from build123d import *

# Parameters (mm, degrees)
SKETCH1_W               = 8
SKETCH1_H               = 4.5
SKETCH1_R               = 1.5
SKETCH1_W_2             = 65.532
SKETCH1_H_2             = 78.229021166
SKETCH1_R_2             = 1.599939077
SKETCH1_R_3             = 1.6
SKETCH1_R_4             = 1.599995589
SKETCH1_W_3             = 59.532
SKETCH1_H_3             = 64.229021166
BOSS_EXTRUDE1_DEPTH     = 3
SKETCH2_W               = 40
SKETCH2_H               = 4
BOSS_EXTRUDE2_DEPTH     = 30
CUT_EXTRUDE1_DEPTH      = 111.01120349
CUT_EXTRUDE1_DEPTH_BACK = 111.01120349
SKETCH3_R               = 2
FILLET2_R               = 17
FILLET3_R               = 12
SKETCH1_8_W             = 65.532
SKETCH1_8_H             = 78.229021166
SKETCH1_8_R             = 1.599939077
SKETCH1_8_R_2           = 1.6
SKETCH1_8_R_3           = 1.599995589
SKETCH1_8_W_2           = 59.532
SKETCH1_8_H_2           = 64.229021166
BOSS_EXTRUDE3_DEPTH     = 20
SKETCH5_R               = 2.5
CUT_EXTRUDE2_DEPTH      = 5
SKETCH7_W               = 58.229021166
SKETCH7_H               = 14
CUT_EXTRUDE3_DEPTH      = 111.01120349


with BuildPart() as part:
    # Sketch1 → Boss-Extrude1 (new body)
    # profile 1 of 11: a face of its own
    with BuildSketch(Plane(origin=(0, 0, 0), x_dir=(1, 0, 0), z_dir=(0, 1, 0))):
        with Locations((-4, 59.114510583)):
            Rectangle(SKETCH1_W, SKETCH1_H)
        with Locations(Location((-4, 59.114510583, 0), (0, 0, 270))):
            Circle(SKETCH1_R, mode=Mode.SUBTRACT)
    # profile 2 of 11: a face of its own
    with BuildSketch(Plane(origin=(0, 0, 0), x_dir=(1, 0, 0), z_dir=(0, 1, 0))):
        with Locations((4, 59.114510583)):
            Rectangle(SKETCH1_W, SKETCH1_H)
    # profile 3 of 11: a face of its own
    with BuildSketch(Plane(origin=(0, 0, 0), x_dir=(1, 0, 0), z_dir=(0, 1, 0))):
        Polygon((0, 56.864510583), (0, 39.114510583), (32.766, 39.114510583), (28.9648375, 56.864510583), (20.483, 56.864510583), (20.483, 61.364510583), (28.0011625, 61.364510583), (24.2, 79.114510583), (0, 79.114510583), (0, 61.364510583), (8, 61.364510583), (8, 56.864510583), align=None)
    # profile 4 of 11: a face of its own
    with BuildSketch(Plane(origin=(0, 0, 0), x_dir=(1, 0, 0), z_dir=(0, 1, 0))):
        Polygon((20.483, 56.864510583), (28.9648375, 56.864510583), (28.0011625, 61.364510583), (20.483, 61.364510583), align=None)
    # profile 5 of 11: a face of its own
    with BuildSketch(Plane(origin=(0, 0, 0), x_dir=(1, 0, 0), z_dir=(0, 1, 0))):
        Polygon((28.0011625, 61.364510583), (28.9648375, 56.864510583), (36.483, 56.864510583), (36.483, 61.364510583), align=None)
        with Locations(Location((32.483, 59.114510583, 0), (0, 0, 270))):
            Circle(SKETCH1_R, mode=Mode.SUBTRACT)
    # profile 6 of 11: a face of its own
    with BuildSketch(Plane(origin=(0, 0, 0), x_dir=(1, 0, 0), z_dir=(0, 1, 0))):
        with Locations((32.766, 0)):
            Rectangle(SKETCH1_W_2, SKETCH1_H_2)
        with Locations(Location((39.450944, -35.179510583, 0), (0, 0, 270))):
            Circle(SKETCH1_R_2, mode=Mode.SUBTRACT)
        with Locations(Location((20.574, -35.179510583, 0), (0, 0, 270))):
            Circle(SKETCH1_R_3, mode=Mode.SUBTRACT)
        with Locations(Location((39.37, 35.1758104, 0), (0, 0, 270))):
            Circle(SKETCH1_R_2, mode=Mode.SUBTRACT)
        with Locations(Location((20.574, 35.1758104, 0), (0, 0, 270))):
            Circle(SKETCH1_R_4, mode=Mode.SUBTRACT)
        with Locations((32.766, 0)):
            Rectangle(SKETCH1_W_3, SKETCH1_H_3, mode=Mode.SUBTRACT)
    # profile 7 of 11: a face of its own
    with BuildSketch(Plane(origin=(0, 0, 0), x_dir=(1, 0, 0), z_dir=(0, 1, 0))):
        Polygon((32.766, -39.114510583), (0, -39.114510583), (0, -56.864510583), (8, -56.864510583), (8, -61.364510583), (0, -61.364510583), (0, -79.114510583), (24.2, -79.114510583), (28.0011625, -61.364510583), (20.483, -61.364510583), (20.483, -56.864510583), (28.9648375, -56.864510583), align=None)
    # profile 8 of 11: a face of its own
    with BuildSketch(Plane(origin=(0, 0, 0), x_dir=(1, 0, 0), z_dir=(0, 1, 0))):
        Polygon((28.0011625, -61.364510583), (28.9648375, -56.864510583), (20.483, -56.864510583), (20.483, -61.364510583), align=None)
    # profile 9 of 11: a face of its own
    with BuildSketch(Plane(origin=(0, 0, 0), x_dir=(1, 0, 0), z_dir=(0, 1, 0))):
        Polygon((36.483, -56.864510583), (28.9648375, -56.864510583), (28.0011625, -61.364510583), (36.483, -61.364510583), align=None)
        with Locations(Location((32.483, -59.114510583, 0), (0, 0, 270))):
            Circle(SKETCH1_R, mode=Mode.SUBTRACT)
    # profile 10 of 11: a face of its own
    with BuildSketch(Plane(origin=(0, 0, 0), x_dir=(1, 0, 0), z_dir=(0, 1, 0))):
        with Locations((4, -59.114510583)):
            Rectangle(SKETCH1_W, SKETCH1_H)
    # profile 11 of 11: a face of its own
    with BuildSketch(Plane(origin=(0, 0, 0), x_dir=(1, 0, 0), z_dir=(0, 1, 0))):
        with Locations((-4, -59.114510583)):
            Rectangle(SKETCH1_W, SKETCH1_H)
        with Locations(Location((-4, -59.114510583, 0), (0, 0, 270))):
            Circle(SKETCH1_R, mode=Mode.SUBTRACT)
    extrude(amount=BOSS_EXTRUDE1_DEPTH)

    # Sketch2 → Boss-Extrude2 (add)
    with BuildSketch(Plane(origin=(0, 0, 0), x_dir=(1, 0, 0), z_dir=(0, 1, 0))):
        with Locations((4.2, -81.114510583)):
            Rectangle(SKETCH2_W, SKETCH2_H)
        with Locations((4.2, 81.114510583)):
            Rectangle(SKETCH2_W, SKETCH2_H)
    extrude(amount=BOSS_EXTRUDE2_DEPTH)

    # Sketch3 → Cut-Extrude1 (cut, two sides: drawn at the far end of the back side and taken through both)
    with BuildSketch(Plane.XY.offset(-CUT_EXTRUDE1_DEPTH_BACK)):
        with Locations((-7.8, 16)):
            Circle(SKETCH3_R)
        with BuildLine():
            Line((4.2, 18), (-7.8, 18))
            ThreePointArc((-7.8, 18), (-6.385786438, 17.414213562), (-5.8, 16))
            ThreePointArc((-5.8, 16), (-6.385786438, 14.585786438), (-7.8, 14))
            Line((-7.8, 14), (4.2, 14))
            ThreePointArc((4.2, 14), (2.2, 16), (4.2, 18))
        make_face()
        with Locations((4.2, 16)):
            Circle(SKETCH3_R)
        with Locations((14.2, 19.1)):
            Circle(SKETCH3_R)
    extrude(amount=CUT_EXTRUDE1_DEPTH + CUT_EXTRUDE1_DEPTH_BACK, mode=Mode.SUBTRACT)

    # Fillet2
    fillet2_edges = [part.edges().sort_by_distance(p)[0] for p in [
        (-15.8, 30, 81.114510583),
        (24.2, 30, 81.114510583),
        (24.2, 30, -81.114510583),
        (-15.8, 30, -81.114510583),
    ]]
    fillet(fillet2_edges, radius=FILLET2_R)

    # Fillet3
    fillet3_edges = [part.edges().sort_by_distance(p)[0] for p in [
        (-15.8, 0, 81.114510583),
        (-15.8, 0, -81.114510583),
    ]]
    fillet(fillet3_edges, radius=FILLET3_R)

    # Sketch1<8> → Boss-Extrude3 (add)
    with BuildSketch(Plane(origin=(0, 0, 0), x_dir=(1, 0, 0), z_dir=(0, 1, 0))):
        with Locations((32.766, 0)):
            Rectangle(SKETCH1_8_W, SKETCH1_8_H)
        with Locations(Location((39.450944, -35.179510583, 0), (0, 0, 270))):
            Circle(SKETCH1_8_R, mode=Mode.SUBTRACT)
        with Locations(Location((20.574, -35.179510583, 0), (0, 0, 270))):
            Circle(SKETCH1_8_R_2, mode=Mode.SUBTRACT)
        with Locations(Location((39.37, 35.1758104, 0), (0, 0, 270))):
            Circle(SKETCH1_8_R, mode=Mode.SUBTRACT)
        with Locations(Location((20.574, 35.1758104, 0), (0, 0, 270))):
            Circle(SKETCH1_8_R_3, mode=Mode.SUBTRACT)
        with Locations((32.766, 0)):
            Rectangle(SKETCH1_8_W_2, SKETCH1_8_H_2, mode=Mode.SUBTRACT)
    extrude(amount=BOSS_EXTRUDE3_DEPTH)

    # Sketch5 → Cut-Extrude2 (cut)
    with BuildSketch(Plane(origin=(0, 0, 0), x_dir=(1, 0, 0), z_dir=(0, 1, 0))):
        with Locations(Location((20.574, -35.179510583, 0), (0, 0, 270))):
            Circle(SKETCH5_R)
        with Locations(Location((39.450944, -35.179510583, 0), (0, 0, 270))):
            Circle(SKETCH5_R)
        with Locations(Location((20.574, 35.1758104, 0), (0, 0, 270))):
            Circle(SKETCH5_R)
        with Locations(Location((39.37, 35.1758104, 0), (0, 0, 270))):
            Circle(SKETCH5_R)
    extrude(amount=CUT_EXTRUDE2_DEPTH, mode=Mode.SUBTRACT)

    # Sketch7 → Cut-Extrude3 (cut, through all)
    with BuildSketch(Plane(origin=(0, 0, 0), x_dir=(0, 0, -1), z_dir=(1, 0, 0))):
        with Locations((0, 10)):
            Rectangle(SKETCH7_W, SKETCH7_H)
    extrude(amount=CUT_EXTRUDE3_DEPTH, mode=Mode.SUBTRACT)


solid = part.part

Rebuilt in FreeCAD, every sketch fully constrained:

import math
import FreeCAD as App
import Part
import Sketcher
from FreeCAD import Vector
Q = App.Units.Quantity


def edges_at(feature, points):
    """Names of the edges that pass closest to the given points."""
    edges = feature.Shape.Edges
    near = lambda p: min(range(len(edges)), key=lambda i: edges[i].distToShape(Part.Vertex(*p))[0])
    return sorted({f"Edge{near(p) + 1}" for p in points})

doc = App.newDocument("Part")
body = doc.addObject("PartDesign::Body", "Body")

sketch1 = body.newObject("Sketcher::SketchObject", "Sketch")
sketch1.AttachmentSupport = (doc.getObject("XZ_Plane"), [""])
sketch1.MapMode = "FlatFace"
sketch1.addGeometry(Part.LineSegment(Vector(-8, -61.364511, 0), Vector(-8, -56.864511, 0)), False)
sketch1.addGeometry(Part.LineSegment(Vector(-8, -56.864511, 0), Vector(0, -56.864511, 0)), False)
sketch1.addGeometry(Part.LineSegment(Vector(0, -56.864511, 0), Vector(0, 56.864511, 0)), False)
sketch1.addGeometry(Part.LineSegment(Vector(0, 56.864511, 0), Vector(-8, 56.864511, 0)), False)
sketch1.addGeometry(Part.LineSegment(Vector(-8, 56.864511, 0), Vector(-8, 61.364511, 0)), False)
sketch1.addGeometry(Part.LineSegment(Vector(-8, 61.364511, 0), Vector(0, 61.364511, 0)), False)
sketch1.addGeometry(Part.LineSegment(Vector(0, 61.364511, 0), Vector(0, 79.114511, 0)), False)
sketch1.addGeometry(Part.LineSegment(Vector(0, 79.114511, 0), Vector(24.2, 79.114511, 0)), False)
sketch1.addGeometry(Part.LineSegment(Vector(24.2, 79.114511, 0), Vector(28.001162, 61.364511, 0)), False)
sketch1.addGeometry(Part.LineSegment(Vector(28.001162, 61.364511, 0), Vector(36.483, 61.364511, 0)), False)
sketch1.addGeometry(Part.LineSegment(Vector(36.483, 61.364511, 0), Vector(36.483, 56.864511, 0)), False)
sketch1.addGeometry(Part.LineSegment(Vector(36.483, 56.864511, 0), Vector(28.964838, 56.864511, 0)), False)
sketch1.addGeometry(Part.LineSegment(Vector(28.964838, 56.864511, 0), Vector(32.766, 39.114511, 0)), False)
sketch1.addGeometry(Part.LineSegment(Vector(32.766, 39.114511, 0), Vector(65.532, 39.114511, 0)), False)
sketch1.addGeometry(Part.LineSegment(Vector(65.532, 39.114511, 0), Vector(65.532, -39.114511, 0)), False)
sketch1.addGeometry(Part.LineSegment(Vector(65.532, -39.114511, 0), Vector(32.766, -39.114511, 0)), False)
sketch1.addGeometry(Part.LineSegment(Vector(32.766, -39.114511, 0), Vector(28.964838, -56.864511, 0)), False)
sketch1.addGeometry(Part.LineSegment(Vector(28.964838, -56.864511, 0), Vector(36.483, -56.864511, 0)), False)
sketch1.addGeometry(Part.LineSegment(Vector(36.483, -56.864511, 0), Vector(36.483, -61.364511, 0)), False)
sketch1.addGeometry(Part.LineSegment(Vector(36.483, -61.364511, 0), Vector(28.001162, -61.364511, 0)), False)
sketch1.addGeometry(Part.LineSegment(Vector(28.001162, -61.364511, 0), Vector(24.2, -79.114511, 0)), False)
sketch1.addGeometry(Part.LineSegment(Vector(24.2, -79.114511, 0), Vector(0, -79.114511, 0)), False)
sketch1.addGeometry(Part.LineSegment(Vector(0, -79.114511, 0), Vector(0, -61.364511, 0)), False)
sketch1.addGeometry(Part.LineSegment(Vector(0, -61.364511, 0), Vector(-8, -61.364511, 0)), False)
sketch1.addGeometry(Part.Circle(Vector(-4, -59.114511, 0), Vector(0, 0, 1), 1.5), False)
sketch1.addGeometry(Part.Circle(Vector(39.37, -35.17581, 0), Vector(0, 0, 1), 1.599939), False)
sketch1.addGeometry(Part.Circle(Vector(20.574, 35.179511, 0), Vector(0, 0, 1), 1.6), False)
sketch1.addGeometry(Part.Circle(Vector(39.450944, 35.179511, 0), Vector(0, 0, 1), 1.599939), False)
sketch1.addGeometry(Part.Circle(Vector(20.574, -35.17581, 0), Vector(0, 0, 1), 1.599996), False)
sketch1.addGeometry(Part.LineSegment(Vector(62.532, 32.114511, 0), Vector(3, 32.114511, 0)), False)
sketch1.addGeometry(Part.LineSegment(Vector(3, 32.114511, 0), Vector(3, -32.114511, 0)), False)
sketch1.addGeometry(Part.LineSegment(Vector(3, -32.114511, 0), Vector(62.532, -32.114511, 0)), False)
sketch1.addGeometry(Part.LineSegment(Vector(62.532, -32.114511, 0), Vector(62.532, 32.114511, 0)), False)
sketch1.addGeometry(Part.Circle(Vector(32.483, -59.114511, 0), Vector(0, 0, 1), 1.5), False)
sketch1.addGeometry(Part.Circle(Vector(-4, 59.114511, 0), Vector(0, 0, 1), 1.5), False)
sketch1.addGeometry(Part.Circle(Vector(32.483, 59.114511, 0), Vector(0, 0, 1), 1.5), False)
sketch1.addConstraint(Sketcher.Constraint("Coincident", 0, 2, 1, 1))
sketch1.addConstraint(Sketcher.Constraint("Coincident", 1, 2, 2, 1))
sketch1.addConstraint(Sketcher.Constraint("Coincident", 2, 2, 3, 1))
sketch1.addConstraint(Sketcher.Constraint("Coincident", 3, 2, 4, 1))
sketch1.addConstraint(Sketcher.Constraint("Coincident", 4, 2, 5, 1))
sketch1.addConstraint(Sketcher.Constraint("Coincident", 5, 2, 6, 1))
sketch1.addConstraint(Sketcher.Constraint("Coincident", 6, 2, 7, 1))
sketch1.addConstraint(Sketcher.Constraint("Coincident", 7, 2, 8, 1))
sketch1.addConstraint(Sketcher.Constraint("Coincident", 8, 2, 9, 1))
sketch1.addConstraint(Sketcher.Constraint("Coincident", 9, 2, 10, 1))
sketch1.addConstraint(Sketcher.Constraint("Coincident", 10, 2, 11, 1))
sketch1.addConstraint(Sketcher.Constraint("Coincident", 11, 2, 12, 1))
sketch1.addConstraint(Sketcher.Constraint("Coincident", 12, 2, 13, 1))
sketch1.addConstraint(Sketcher.Constraint("Coincident", 13, 2, 14, 1))
sketch1.addConstraint(Sketcher.Constraint("Coincident", 14, 2, 15, 1))
sketch1.addConstraint(Sketcher.Constraint("Coincident", 15, 2, 16, 1))
sketch1.addConstraint(Sketcher.Constraint("Coincident", 16, 2, 17, 1))
sketch1.addConstraint(Sketcher.Constraint("Coincident", 17, 2, 18, 1))
sketch1.addConstraint(Sketcher.Constraint("Coincident", 18, 2, 19, 1))
sketch1.addConstraint(Sketcher.Constraint("Coincident", 19, 2, 20, 1))
sketch1.addConstraint(Sketcher.Constraint("Coincident", 20, 2, 21, 1))
sketch1.addConstraint(Sketcher.Constraint("Coincident", 21, 2, 22, 1))
sketch1.addConstraint(Sketcher.Constraint("Coincident", 22, 2, 23, 1))
sketch1.addConstraint(Sketcher.Constraint("Coincident", 23, 2, 0, 1))
sketch1.addConstraint(Sketcher.Constraint("Coincident", 29, 2, 30, 1))
sketch1.addConstraint(Sketcher.Constraint("Coincident", 30, 2, 31, 1))
sketch1.addConstraint(Sketcher.Constraint("Coincident", 31, 2, 32, 1))
sketch1.addConstraint(Sketcher.Constraint("Coincident", 32, 2, 29, 1))
sketch1.addConstraint(Sketcher.Constraint("Vertical", 0))
sketch1.addConstraint(Sketcher.Constraint("Horizontal", 1))
sketch1.addConstraint(Sketcher.Constraint("Vertical", 2))
sketch1.addConstraint(Sketcher.Constraint("Horizontal", 3))
sketch1.addConstraint(Sketcher.Constraint("Vertical", 4))
sketch1.addConstraint(Sketcher.Constraint("Horizontal", 5))
sketch1.addConstraint(Sketcher.Constraint("Vertical", 6))
sketch1.addConstraint(Sketcher.Constraint("Horizontal", 7))
sketch1.addConstraint(Sketcher.Constraint("Horizontal", 9))
sketch1.addConstraint(Sketcher.Constraint("Vertical", 10))
sketch1.addConstraint(Sketcher.Constraint("Horizontal", 11))
sketch1.addConstraint(Sketcher.Constraint("Horizontal", 13))
sketch1.addConstraint(Sketcher.Constraint("Vertical", 14))
sketch1.addConstraint(Sketcher.Constraint("Horizontal", 15))
sketch1.addConstraint(Sketcher.Constraint("Horizontal", 17))
sketch1.addConstraint(Sketcher.Constraint("Vertical", 18))
sketch1.addConstraint(Sketcher.Constraint("Horizontal", 19))
sketch1.addConstraint(Sketcher.Constraint("Horizontal", 21))
sketch1.addConstraint(Sketcher.Constraint("Vertical", 22))
sketch1.addConstraint(Sketcher.Constraint("Horizontal", 23))
sketch1.addConstraint(Sketcher.Constraint("Horizontal", 29))
sketch1.addConstraint(Sketcher.Constraint("Vertical", 30))
sketch1.addConstraint(Sketcher.Constraint("Horizontal", 31))
sketch1.addConstraint(Sketcher.Constraint("Vertical", 32))
sketch1.addConstraint(Sketcher.Constraint("Equal", 25, 27))
sketch1.addConstraint(Sketcher.Constraint("Equal", 24, 33))
sketch1.addConstraint(Sketcher.Constraint("Equal", 33, 34))
sketch1.addConstraint(Sketcher.Constraint("Equal", 34, 35))
sketch1.addConstraint(Sketcher.Constraint("Symmetric", 1, 2, 2, 2, -1, 1))
sketch1.addConstraint(Sketcher.Constraint("Symmetric", 6, 2, 21, 2, -1, 1))
sketch1.addConstraint(Sketcher.Constraint("Symmetric", 24, 3, 34, 3, -1))
sketch1.addConstraint(Sketcher.Constraint("Symmetric", 33, 3, 35, 3, -1))
sketch1.addConstraint(Sketcher.Constraint("Symmetric", 12, 2, 15, 2, -1))
sketch1.addConstraint(Sketcher.Constraint("Symmetric", 11, 2, 16, 2, -1))
sketch1.addConstraint(Sketcher.Constraint("Symmetric", 9, 2, 18, 2, -1))
sketch1.addConstraint(Sketcher.Constraint("Symmetric", 5, 2, 22, 2, -1))
sketch1.addConstraint(Sketcher.Constraint("Parallel", 8, 12))
sketch1.addConstraint(Sketcher.Constraint("Parallel", 16, 20))
sketch1.addConstraint(Sketcher.Constraint("Horizontal", 26, 3, 27, 3))
sketch1.addConstraint(Sketcher.Constraint("Horizontal", 25, 3, 28, 3))
sketch1.addConstraint(Sketcher.Constraint("Horizontal", 24, 3, 33, 3))
sketch1.addConstraint(Sketcher.Constraint("Horizontal", 5, 2, 8, 2))
sketch1.addConstraint(Sketcher.Constraint("Horizontal", 3, 2, 10, 2))
sketch1.addConstraint(Sketcher.Constraint("Vertical", 26, 3, 28, 3))
sketch1.addConstraint(Sketcher.Constraint("Vertical", 0, 2, 3, 2))
sketch1.addConstraint(Sketcher.Constraint("Vertical", 8, 2, 19, 2))
sketch1.addConstraint(Sketcher.Constraint("Equal", 8, 12))
sketch1.addConstraint(Sketcher.Constraint("Diameter", 24, Q("3 mm")))
sketch1.addConstraint(Sketcher.Constraint("Diameter", 26, Q("3.2 mm")))
sketch1.addConstraint(Sketcher.Constraint("DistanceX", 1, 1, 1, 2, Q("8 mm")))
sketch1.addConstraint(Sketcher.Constraint("DistanceX", 7, 1, 7, 2, Q("24.2 mm")))
sketch1.addConstraint(Sketcher.Constraint("DistanceY", 0, 1, 0, 2, Q("4.5 mm")))
sketch1.addConstraint(Sketcher.Constraint("DistanceX", 24, 3, -1, 1, Q("4 mm")))
sketch1.addConstraint(Sketcher.Constraint("DistanceX", -1, 1, 29, 2, Q("3 mm")))
sketch1.addConstraint(Sketcher.Constraint("DistanceY", 34, 3, 6, 2, Q("20 mm")))
sketch1.addConstraint(Sketcher.Constraint("DistanceX", 35, 3, 9, 2, Q("4 mm")))
sketch1.addConstraint(Sketcher.Constraint("DistanceY", 12, 2, 35, 3, Q("20 mm")))
sketch1.addConstraint(Sketcher.Constraint("DistanceY", 29, 2, 34, 3, Q("27 mm")))
sketch1.addConstraint(Sketcher.Constraint("DistanceY", 24, 3, 30, 2, Q("27 mm")))
sketch1.addConstraint(Sketcher.Constraint("DistanceX", 31, 2, 14, 2, Q("3 mm")))
sketch1.addConstraint(Sketcher.Constraint("Diameter", 25, Q("3.199878 mm")))
sketch1.addConstraint(Sketcher.Constraint("Diameter", 28, Q("3.199991 mm")))
sketch1.addConstraint(Sketcher.Constraint("DistanceX", 13, 1, 13, 2, Q("32.766 mm")))
sketch1.addConstraint(Sketcher.Constraint("DistanceX", 29, 2, 29, 1, Q("59.532 mm")))
sketch1.addConstraint(Sketcher.Constraint("DistanceX", -1, 1, 25, 3, Q("39.37 mm")))
sketch1.addConstraint(Sketcher.Constraint("DistanceX", -1, 1, 26, 3, Q("20.574 mm")))
sketch1.addConstraint(Sketcher.Constraint("DistanceX", -1, 1, 33, 3, Q("32.483 mm")))
sketch1.addConstraint(Sketcher.Constraint("DistanceY", 26, 3, 34, 3, Q("23.935 mm")))
sketch1.addConstraint(Sketcher.Constraint("DistanceY", 2, 1, 2, 2, Q("113.729021 mm")))
sketch1.addConstraint(Sketcher.Constraint("DistanceY", 24, 3, 25, 3, Q("23.9387 mm")))
sketch1.addConstraint(Sketcher.Constraint("DistanceX", 9, 1, 9, 2, Q("8.481837 mm")))
sketch1.addConstraint(Sketcher.Constraint("DistanceX", -1, 1, 27, 3, Q("39.450944 mm")))
pad1 = body.newObject("PartDesign::Pad", "Pad")
pad1.Profile = sketch1
pad1.Length = 3
pad1.Reversed = True

sketch2 = body.newObject("Sketcher::SketchObject", "Sketch001")
sketch2.AttachmentSupport = (doc.getObject("XZ_Plane"), [""])
sketch2.MapMode = "FlatFace"
sketch2.addGeometry(Part.LineSegment(Vector(-15.8, 79.114511, 0), Vector(-15.8, 83.114511, 0)), False)
sketch2.addGeometry(Part.LineSegment(Vector(-15.8, 83.114511, 0), Vector(24.2, 83.114511, 0)), False)
sketch2.addGeometry(Part.LineSegment(Vector(24.2, 83.114511, 0), Vector(24.2, 79.114511, 0)), False)
sketch2.addGeometry(Part.LineSegment(Vector(24.2, 79.114511, 0), Vector(-15.8, 79.114511, 0)), False)
sketch2.addGeometry(Part.LineSegment(Vector(-15.8, -83.114511, 0), Vector(-15.8, -79.114511, 0)), False)
sketch2.addGeometry(Part.LineSegment(Vector(-15.8, -79.114511, 0), Vector(24.2, -79.114511, 0)), False)
sketch2.addGeometry(Part.LineSegment(Vector(24.2, -79.114511, 0), Vector(24.2, -83.114511, 0)), False)
sketch2.addGeometry(Part.LineSegment(Vector(24.2, -83.114511, 0), Vector(-15.8, -83.114511, 0)), False)
sketch2.addConstraint(Sketcher.Constraint("Coincident", 0, 2, 1, 1))
sketch2.addConstraint(Sketcher.Constraint("Coincident", 1, 2, 2, 1))
sketch2.addConstraint(Sketcher.Constraint("Coincident", 2, 2, 3, 1))
sketch2.addConstraint(Sketcher.Constraint("Coincident", 3, 2, 0, 1))
sketch2.addConstraint(Sketcher.Constraint("Coincident", 4, 2, 5, 1))
sketch2.addConstraint(Sketcher.Constraint("Coincident", 5, 2, 6, 1))
sketch2.addConstraint(Sketcher.Constraint("Coincident", 6, 2, 7, 1))
sketch2.addConstraint(Sketcher.Constraint("Coincident", 7, 2, 4, 1))
sketch2.addConstraint(Sketcher.Constraint("Vertical", 0))
sketch2.addConstraint(Sketcher.Constraint("Horizontal", 1))
sketch2.addConstraint(Sketcher.Constraint("Vertical", 2))
sketch2.addConstraint(Sketcher.Constraint("Horizontal", 3))
sketch2.addConstraint(Sketcher.Constraint("Vertical", 4))
sketch2.addConstraint(Sketcher.Constraint("Horizontal", 5))
sketch2.addConstraint(Sketcher.Constraint("Vertical", 6))
sketch2.addConstraint(Sketcher.Constraint("Horizontal", 7))
sketch2.addConstraint(Sketcher.Constraint("Symmetric", 3, 2, 4, 2, -1))
sketch2.addConstraint(Sketcher.Constraint("Symmetric", 1, 2, 6, 2, -1))
sketch2.addConstraint(Sketcher.Constraint("DistanceX", 1, 1, 1, 2, Q("40 mm")))
sketch2.addConstraint(Sketcher.Constraint("DistanceY", 0, 1, 0, 2, Q("4 mm")))
sketch2.addConstraint(Sketcher.Constraint("DistanceX", 0, 2, -1, 1, Q("15.8 mm")))
sketch2.addConstraint(Sketcher.Constraint("DistanceY", -1, 1, 0, 2, Q("83.114511 mm")))
pad2 = body.newObject("PartDesign::Pad", "Pad001")
pad2.Profile = sketch2
pad2.Length = 30
pad2.Reversed = True

sketch3 = body.newObject("Sketcher::SketchObject", "Sketch002")
sketch3.AttachmentSupport = (doc.getObject("XY_Plane"), [""])
sketch3.MapMode = "FlatFace"
sketch3.addGeometry(Part.ArcOfCircle(Part.Circle(Vector(-7.8, 16, 0), Vector(0, 0, 1), 2), math.radians(90), math.radians(270)), False)
sketch3.addGeometry(Part.LineSegment(Vector(-7.8, 14, 0), Vector(4.2, 14, 0)), False)
sketch3.addGeometry(Part.ArcOfCircle(Part.Circle(Vector(4.2, 16, 0), Vector(0, 0, 1), 2), math.radians(-90), math.radians(90)), False)
sketch3.addGeometry(Part.LineSegment(Vector(4.2, 18, 0), Vector(-7.8, 18, 0)), False)
sketch3.addGeometry(Part.Circle(Vector(14.2, 19.1, 0), Vector(0, 0, 1), 2), False)
sketch3.addConstraint(Sketcher.Constraint("Tangent", 0, 2, 1, 1))
sketch3.addConstraint(Sketcher.Constraint("Tangent", 1, 2, 2, 1))
sketch3.addConstraint(Sketcher.Constraint("Tangent", 2, 2, 3, 1))
sketch3.addConstraint(Sketcher.Constraint("Tangent", 3, 2, 0, 1))
sketch3.addConstraint(Sketcher.Constraint("Horizontal", 1))
sketch3.addConstraint(Sketcher.Constraint("Horizontal", 3))
sketch3.addConstraint(Sketcher.Constraint("Equal", 2, 4))
sketch3.addConstraint(Sketcher.Constraint("Diameter", 4, Q("4 mm")))
sketch3.addConstraint(Sketcher.Constraint("DistanceX", 1, 1, 1, 2, Q("12 mm")))
sketch3.addConstraint(Sketcher.Constraint("DistanceY", -1, 1, 0, 3, Q("16 mm")))
sketch3.addConstraint(Sketcher.Constraint("DistanceX", 2, 3, 4, 3, Q("10 mm")))
sketch3.addConstraint(Sketcher.Constraint("DistanceX", 0, 3, -1, 1, Q("7.8 mm")))
sketch3.addConstraint(Sketcher.Constraint("DistanceY", -1, 1, 4, 3, Q("19.1 mm")))
pocket1 = body.newObject("PartDesign::Pocket", "Pocket")
pocket1.Profile = sketch3
pocket1.Type = "ThroughAll"
pocket1.Midplane = True
doc.recompute()

fillet = body.newObject("PartDesign::Fillet", "Fillet")
fillet.Base = (pocket1, edges_at(pocket1, [
    (-15.8, 30, 81.115),
    (24.2, 30, 81.115),
    (24.2, 30, -81.115),
    (-15.8, 30, -81.115),
]))
fillet.Radius = 17
doc.recompute()

fillet2 = body.newObject("PartDesign::Fillet", "Fillet001")
fillet2.Base = (fillet, edges_at(fillet, [(-15.8, 0, 81.115), (-15.8, 0, -81.115)]))
fillet2.Radius = 12

sketch4 = body.newObject("Sketcher::SketchObject", "Sketch003")
sketch4.AttachmentSupport = (doc.getObject("XZ_Plane"), [""])
sketch4.MapMode = "FlatFace"
sketch4.addGeometry(Part.LineSegment(Vector(0, -39.114511, 0), Vector(0, 39.114511, 0)), False)
sketch4.addGeometry(Part.LineSegment(Vector(0, 39.114511, 0), Vector(65.532, 39.114511, 0)), False)
sketch4.addGeometry(Part.LineSegment(Vector(65.532, 39.114511, 0), Vector(65.532, -39.114511, 0)), False)
sketch4.addGeometry(Part.LineSegment(Vector(65.532, -39.114511, 0), Vector(0, -39.114511, 0)), False)
sketch4.addGeometry(Part.Circle(Vector(20.574, 35.179511, 0), Vector(0, 0, 1), 1.6), False)
sketch4.addGeometry(Part.Circle(Vector(39.450944, 35.179511, 0), Vector(0, 0, 1), 1.599939), False)
sketch4.addGeometry(Part.Circle(Vector(20.574, -35.17581, 0), Vector(0, 0, 1), 1.599996), False)
sketch4.addGeometry(Part.LineSegment(Vector(62.532, 32.114511, 0), Vector(3, 32.114511, 0)), False)
sketch4.addGeometry(Part.LineSegment(Vector(3, 32.114511, 0), Vector(3, -32.114511, 0)), False)
sketch4.addGeometry(Part.LineSegment(Vector(3, -32.114511, 0), Vector(62.532, -32.114511, 0)), False)
sketch4.addGeometry(Part.LineSegment(Vector(62.532, -32.114511, 0), Vector(62.532, 32.114511, 0)), False)
sketch4.addGeometry(Part.Circle(Vector(39.37, -35.17581, 0), Vector(0, 0, 1), 1.599939), False)
sketch4.addConstraint(Sketcher.Constraint("Coincident", 0, 2, 1, 1))
sketch4.addConstraint(Sketcher.Constraint("Coincident", 1, 2, 2, 1))
sketch4.addConstraint(Sketcher.Constraint("Coincident", 2, 2, 3, 1))
sketch4.addConstraint(Sketcher.Constraint("Coincident", 3, 2, 0, 1))
sketch4.addConstraint(Sketcher.Constraint("Coincident", 7, 2, 8, 1))
sketch4.addConstraint(Sketcher.Constraint("Coincident", 8, 2, 9, 1))
sketch4.addConstraint(Sketcher.Constraint("Coincident", 9, 2, 10, 1))
sketch4.addConstraint(Sketcher.Constraint("Coincident", 10, 2, 7, 1))
sketch4.addConstraint(Sketcher.Constraint("Vertical", 0))
sketch4.addConstraint(Sketcher.Constraint("Horizontal", 1))
sketch4.addConstraint(Sketcher.Constraint("Vertical", 2))
sketch4.addConstraint(Sketcher.Constraint("Horizontal", 3))
sketch4.addConstraint(Sketcher.Constraint("Horizontal", 7))
sketch4.addConstraint(Sketcher.Constraint("Vertical", 8))
sketch4.addConstraint(Sketcher.Constraint("Horizontal", 9))
sketch4.addConstraint(Sketcher.Constraint("Vertical", 10))
sketch4.addConstraint(Sketcher.Constraint("Equal", 5, 11))
sketch4.addConstraint(Sketcher.Constraint("Symmetric", 0, 2, 3, 2, -1, 1))
sketch4.addConstraint(Sketcher.Constraint("Horizontal", 4, 3, 5, 3))
sketch4.addConstraint(Sketcher.Constraint("Horizontal", 6, 3, 11, 3))
sketch4.addConstraint(Sketcher.Constraint("Vertical", 4, 3, 6, 3))
sketch4.addConstraint(Sketcher.Constraint("Diameter", 4, Q("3.2 mm")))
sketch4.addConstraint(Sketcher.Constraint("DistanceX", -1, 1, 7, 2, Q("3 mm")))
sketch4.addConstraint(Sketcher.Constraint("DistanceY", 7, 2, 0, 2, Q("7 mm")))
sketch4.addConstraint(Sketcher.Constraint("DistanceY", 3, 2, 8, 2, Q("7 mm")))
sketch4.addConstraint(Sketcher.Constraint("DistanceX", 9, 2, 2, 2, Q("3 mm")))
sketch4.addConstraint(Sketcher.Constraint("Diameter", 5, Q("3.199878 mm")))
sketch4.addConstraint(Sketcher.Constraint("Diameter", 6, Q("3.199991 mm")))
sketch4.addConstraint(Sketcher.Constraint("DistanceX", 1, 1, 1, 2, Q("65.532 mm")))
sketch4.addConstraint(Sketcher.Constraint("DistanceX", -1, 1, 11, 3, Q("39.37 mm")))
sketch4.addConstraint(Sketcher.Constraint("DistanceX", -1, 1, 4, 3, Q("20.574 mm")))
sketch4.addConstraint(Sketcher.Constraint("DistanceY", 4, 3, 0, 2, Q("3.935 mm")))
sketch4.addConstraint(Sketcher.Constraint("DistanceY", 0, 1, 0, 2, Q("78.229021 mm")))
sketch4.addConstraint(Sketcher.Constraint("DistanceY", 2, 2, 11, 3, Q("3.9387 mm")))
sketch4.addConstraint(Sketcher.Constraint("DistanceX", -1, 1, 5, 3, Q("39.450944 mm")))
pad3 = body.newObject("PartDesign::Pad", "Pad002")
pad3.Profile = sketch4
pad3.Length = 20
pad3.Reversed = True

sketch5 = body.newObject("Sketcher::SketchObject", "Sketch004")
sketch5.AttachmentSupport = (doc.getObject("XZ_Plane"), [""])
sketch5.MapMode = "FlatFace"
sketch5.addGeometry(Part.Circle(Vector(20.574, 35.179511, 0), Vector(0, 0, 1), 2.5), False)
sketch5.addGeometry(Part.Circle(Vector(39.450944, 35.179511, 0), Vector(0, 0, 1), 2.5), False)
sketch5.addGeometry(Part.Circle(Vector(20.574, -35.17581, 0), Vector(0, 0, 1), 2.5), False)
sketch5.addGeometry(Part.Circle(Vector(39.37, -35.17581, 0), Vector(0, 0, 1), 2.5), False)
sketch5.addConstraint(Sketcher.Constraint("Equal", 0, 1))
sketch5.addConstraint(Sketcher.Constraint("Equal", 1, 2))
sketch5.addConstraint(Sketcher.Constraint("Equal", 2, 3))
sketch5.addConstraint(Sketcher.Constraint("Horizontal", 0, 3, 1, 3))
sketch5.addConstraint(Sketcher.Constraint("Horizontal", 2, 3, 3, 3))
sketch5.addConstraint(Sketcher.Constraint("Vertical", 0, 3, 2, 3))
sketch5.addConstraint(Sketcher.Constraint("Diameter", 0, Q("5 mm")))
sketch5.addConstraint(Sketcher.Constraint("DistanceX", -1, 1, 3, 3, Q("39.37 mm")))
sketch5.addConstraint(Sketcher.Constraint("DistanceX", -1, 1, 0, 3, Q("20.574 mm")))
sketch5.addConstraint(Sketcher.Constraint("DistanceY", -1, 1, 0, 3, Q("35.179511 mm")))
sketch5.addConstraint(Sketcher.Constraint("DistanceY", 2, 3, -1, 1, Q("35.17581 mm")))
sketch5.addConstraint(Sketcher.Constraint("DistanceX", -1, 1, 1, 3, Q("39.450944 mm")))
pocket2 = body.newObject("PartDesign::Pocket", "Pocket001")
pocket2.Profile = sketch5
pocket2.Length = 5

sketch6 = body.newObject("Sketcher::SketchObject", "Sketch005")
sketch6.AttachmentSupport = (doc.getObject("YZ_Plane"), [""])
sketch6.MapMode = "FlatFace"
sketch6.addGeometry(Part.LineSegment(Vector(17, 29.114511, 0), Vector(3, 29.114511, 0)), False)
sketch6.addGeometry(Part.LineSegment(Vector(3, 29.114511, 0), Vector(3, -29.114511, 0)), False)
sketch6.addGeometry(Part.LineSegment(Vector(3, -29.114511, 0), Vector(17, -29.114511, 0)), False)
sketch6.addGeometry(Part.LineSegment(Vector(17, -29.114511, 0), Vector(17, 29.114511, 0)), False)
sketch6.addConstraint(Sketcher.Constraint("Coincident", 0, 2, 1, 1))
sketch6.addConstraint(Sketcher.Constraint("Coincident", 1, 2, 2, 1))
sketch6.addConstraint(Sketcher.Constraint("Coincident", 2, 2, 3, 1))
sketch6.addConstraint(Sketcher.Constraint("Coincident", 3, 2, 0, 1))
sketch6.addConstraint(Sketcher.Constraint("Horizontal", 0))
sketch6.addConstraint(Sketcher.Constraint("Vertical", 1))
sketch6.addConstraint(Sketcher.Constraint("Horizontal", 2))
sketch6.addConstraint(Sketcher.Constraint("Vertical", 3))
sketch6.addConstraint(Sketcher.Constraint("DistanceX", 0, 2, 0, 1, Q("14 mm")))
sketch6.addConstraint(Sketcher.Constraint("DistanceX", -1, 1, 0, 2, Q("3 mm")))
sketch6.addConstraint(Sketcher.Constraint("DistanceY", 1, 2, 1, 1, Q("58.229021 mm")))
sketch6.addConstraint(Sketcher.Constraint("DistanceY", -1, 1, 0, 2, Q("29.114511 mm")))
pocket3 = body.newObject("PartDesign::Pocket", "Pocket002")
pocket3.Profile = sketch6
pocket3.Type = "ThroughAll"
pocket3.Reversed = True

doc.recompute()
